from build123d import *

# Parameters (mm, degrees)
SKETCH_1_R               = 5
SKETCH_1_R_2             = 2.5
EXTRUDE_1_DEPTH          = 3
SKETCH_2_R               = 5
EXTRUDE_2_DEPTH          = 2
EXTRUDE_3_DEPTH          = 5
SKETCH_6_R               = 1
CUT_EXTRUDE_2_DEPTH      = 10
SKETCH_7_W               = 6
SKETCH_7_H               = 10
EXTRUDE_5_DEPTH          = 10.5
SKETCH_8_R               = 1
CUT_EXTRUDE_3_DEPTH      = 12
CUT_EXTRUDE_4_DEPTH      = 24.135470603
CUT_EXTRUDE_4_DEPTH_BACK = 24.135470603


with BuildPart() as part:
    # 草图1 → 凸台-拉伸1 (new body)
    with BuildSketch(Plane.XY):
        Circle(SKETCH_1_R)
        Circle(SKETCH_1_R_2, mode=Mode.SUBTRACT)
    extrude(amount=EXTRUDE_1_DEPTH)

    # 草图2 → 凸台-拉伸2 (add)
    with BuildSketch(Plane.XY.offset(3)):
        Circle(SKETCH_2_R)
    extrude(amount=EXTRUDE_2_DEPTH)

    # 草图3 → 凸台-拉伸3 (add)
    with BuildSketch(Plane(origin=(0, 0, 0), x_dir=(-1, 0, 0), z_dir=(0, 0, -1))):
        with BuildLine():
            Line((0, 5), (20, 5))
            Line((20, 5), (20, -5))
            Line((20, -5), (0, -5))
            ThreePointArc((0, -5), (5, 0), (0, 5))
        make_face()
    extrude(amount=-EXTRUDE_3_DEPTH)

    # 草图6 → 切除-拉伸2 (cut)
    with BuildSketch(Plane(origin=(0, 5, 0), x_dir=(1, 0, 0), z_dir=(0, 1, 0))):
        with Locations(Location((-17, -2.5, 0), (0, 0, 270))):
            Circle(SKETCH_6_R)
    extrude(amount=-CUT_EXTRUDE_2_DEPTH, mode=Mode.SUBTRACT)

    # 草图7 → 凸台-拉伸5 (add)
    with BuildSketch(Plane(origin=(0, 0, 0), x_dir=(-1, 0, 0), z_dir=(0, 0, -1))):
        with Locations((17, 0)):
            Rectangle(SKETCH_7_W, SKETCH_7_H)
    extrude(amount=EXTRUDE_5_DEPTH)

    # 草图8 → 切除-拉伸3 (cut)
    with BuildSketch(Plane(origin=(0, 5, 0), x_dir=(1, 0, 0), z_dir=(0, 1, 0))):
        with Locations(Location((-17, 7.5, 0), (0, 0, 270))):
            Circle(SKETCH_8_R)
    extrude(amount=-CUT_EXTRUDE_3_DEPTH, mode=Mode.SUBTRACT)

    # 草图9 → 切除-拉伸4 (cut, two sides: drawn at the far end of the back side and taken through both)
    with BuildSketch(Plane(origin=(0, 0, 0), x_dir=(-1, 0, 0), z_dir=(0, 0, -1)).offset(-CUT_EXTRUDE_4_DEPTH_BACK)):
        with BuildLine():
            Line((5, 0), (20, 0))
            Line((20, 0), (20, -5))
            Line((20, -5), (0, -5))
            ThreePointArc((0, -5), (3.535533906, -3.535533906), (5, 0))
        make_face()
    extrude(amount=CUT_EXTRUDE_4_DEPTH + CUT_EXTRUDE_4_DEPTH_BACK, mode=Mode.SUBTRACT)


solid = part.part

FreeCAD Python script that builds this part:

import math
import FreeCAD as App
import Part
import Sketcher

V = App.Vector

doc = App.newDocument("Part")
body = doc.addObject("PartDesign::Body", "Body")

# Sketch on XY plane
sketch1 = doc.addObject("Sketcher::SketchObject", "Sketch")
body.addObject(sketch1)
sketch1.AttachmentSupport = (doc.XY_Plane, [""])
sketch1.MapMode = "FlatFace"
sketch1.addGeometry([
    Part.Circle(V(0, 0, 0), V(0, 0, 1), 5),
    Part.Circle(V(0, 0, 0), V(0, 0, 1), 2.5),
], False)
sketch1.addConstraint([
    Sketcher.Constraint("Coincident", 0, 3, -1, 1),
    Sketcher.Constraint("Coincident", 1, 3, -1, 1),
    Sketcher.Constraint("Diameter", 0, 10.0),
    Sketcher.Constraint("Diameter", 1, 5.0),
])
pad1 = doc.addObject("PartDesign::Pad", "Pad")
body.addObject(pad1)
pad1.Profile = sketch1
pad1.Length = 3

# Sketch on XY plane
sketch2 = doc.addObject("Sketcher::SketchObject", "Sketch001")
body.addObject(sketch2)
sketch2.AttachmentSupport = (doc.XY_Plane, [""])
sketch2.MapMode = "FlatFace"
sketch2.AttachmentOffset = App.Placement(V(0, 0, 3), App.Rotation())
sketch2.addGeometry(Part.Circle(V(0, 0, 0), V(0, 0, 1), 5), False)
sketch2.addConstraint([
    Sketcher.Constraint("Coincident", 0, 3, -1, 1),
    Sketcher.Constraint("Diameter", 0, 10.0),
])
pad2 = doc.addObject("PartDesign::Pad", "Pad001")
body.addObject(pad2)
pad2.Profile = sketch2
pad2.Length = 2

# Sketch on XY plane
sketch3 = doc.addObject("Sketcher::SketchObject", "Sketch002")
body.addObject(sketch3)
sketch3.AttachmentSupport = (doc.XY_Plane, [""])
sketch3.MapMode = "FlatFace"
sketch3.addGeometry([
    Part.LineSegment(V(-20, 5, 0), V(0, 5, 0)),
    Part.ArcOfCircle(Part.Circle(V(0, 0, 0), V(0, 0, 1), 5), math.radians(90), math.radians(270)),
    Part.LineSegment(V(0, -5, 0), V(-20, -5, 0)),
    Part.LineSegment(V(-20, -5, 0), V(-20, 5, 0)),
], False)
sketch3.addConstraint([
    Sketcher.Constraint("Tangent", 0, 2, 1, 1),
    Sketcher.Constraint("Tangent", 1, 2, 2, 1),
    Sketcher.Constraint("Coincident", 2, 2, 3, 1),
    Sketcher.Constraint("Coincident", 3, 2, 0, 1),
    Sketcher.Constraint("Horizontal", 0),
    Sketcher.Constraint("Horizontal", 2),
    Sketcher.Constraint("Vertical", 3),
    Sketcher.Constraint("Coincident", 1, 3, -1, 1),
    Sketcher.Constraint("Radius", 1, 5.0),
    Sketcher.Constraint("DistanceX", 0, 1, 0, 2, 20.0),
])
pad3 = doc.addObject("PartDesign::Pad", "Pad002")
body.addObject(pad3)
pad3.Profile = sketch3
pad3.Length = 5

# Sketch on XZ plane
sketch4 = doc.addObject("Sketcher::SketchObject", "Sketch003")
body.addObject(sketch4)
sketch4.AttachmentSupport = (doc.XZ_Plane, [""])
sketch4.MapMode = "FlatFace"
sketch4.AttachmentOffset = App.Placement(V(0, 0, -5), App.Rotation())
sketch4.addGeometry(Part.Circle(V(-17, 2.5, 0), V(0, 0, 1), 1), False)
sketch4.addConstraint([
    Sketcher.Constraint("Diameter", 0, 2.0),
    Sketcher.Constraint("DistanceX", 0, 3, -1, 1, 17.0),
    Sketcher.Constraint("DistanceY", -1, 1, 0, 3, 2.5),
])
pocket1 = doc.addObject("PartDesign::Pocket", "Pocket")
body.addObject(pocket1)
pocket1.Profile = sketch4
pocket1.Length = 10
pocket1.Reversed = True

# Sketch on XY plane
sketch5 = doc.addObject("Sketcher::SketchObject", "Sketch004")
body.addObject(sketch5)
sketch5.AttachmentSupport = (doc.XY_Plane, [""])
sketch5.MapMode = "FlatFace"
sketch5.addGeometry([
    Part.LineSegment(V(-14, 5, 0), V(-14, -5, 0)),
    Part.LineSegment(V(-14, -5, 0), V(-20, -5, 0)),
    Part.LineSegment(V(-20, -5, 0), V(-20, 5, 0)),
    Part.LineSegment(V(-20, 5, 0), V(-14, 5, 0)),
], False)
sketch5.addConstraint([
    Sketcher.Constraint("Coincident", 0, 2, 1, 1),
    Sketcher.Constraint("Coincident", 1, 2, 2, 1),
    Sketcher.Constraint("Coincident", 2, 2, 3, 1),
    Sketcher.Constraint("Coincident", 3, 2, 0, 1),
    Sketcher.Constraint("Vertical", 0),
    Sketcher.Constraint("Horizontal", 1),
    Sketcher.Constraint("Vertical", 2),
    Sketcher.Constraint("Horizontal", 3),
    Sketcher.Constraint("DistanceX", 1, 2, 1, 1, 6.0),
    Sketcher.Constraint("DistanceY", 0, 2, 0, 1, 10.0),
    Sketcher.Constraint("DistanceX", 0, 2, -1, 1, 14.0),
    Sketcher.Constraint("DistanceY", 0, 2, -1, 1, 5.0),
])
pad4 = doc.addObject("PartDesign::Pad", "Pad003")
body.addObject(pad4)
pad4.Profile = sketch5
pad4.Length = 10.5
pad4.Reversed = True

# Sketch on XZ plane
sketch6 = doc.addObject("Sketcher::SketchObject", "Sketch005")
body.addObject(sketch6)
sketch6.AttachmentSupport = (doc.XZ_Plane, [""])
sketch6.MapMode = "FlatFace"
sketch6.AttachmentOffset = App.Placement(V(0, 0, -5), App.Rotation())
sketch6.addGeometry(Part.Circle(V(-17, -7.5, 0), V(0, 0, 1), 1), False)
sketch6.addConstraint([
    Sketcher.Constraint("Diameter", 0, 2.0),
    Sketcher.Constraint("DistanceX", 0, 3, -1, 1, 17.0),
    Sketcher.Constraint("DistanceY", 0, 3, -1, 1, 7.5),
])
pocket2 = doc.addObject("PartDesign::Pocket", "Pocket001")
body.addObject(pocket2)
pocket2.Profile = sketch6
pocket2.Length = 12
pocket2.Reversed = True

# Sketch on XY plane
sketch7 = doc.addObject("Sketcher::SketchObject", "Sketch006")
body.addObject(sketch7)
sketch7.AttachmentSupport = (doc.XY_Plane, [""])
sketch7.MapMode = "FlatFace"
sketch7.addGeometry([
    Part.LineSegment(V(-20, 0, 0), V(-5, 0, 0)),
    Part.ArcOfCircle(Part.Circle(V(0, 0, 0), V(0, 0, 1), 5), math.radians(180), math.radians(270)),
    Part.LineSegment(V(0, -5, 0), V(-20, -5, 0)),
    Part.LineSegment(V(-20, -5, 0), V(-20, 0, 0)),
], False)
sketch7.addConstraint([
    Sketcher.Constraint("Coincident", 0, 2, 1, 1),
    Sketcher.Constraint("Tangent", 1, 2, 2, 1),
    Sketcher.Constraint("Coincident", 2, 2, 3, 1),
    Sketcher.Constraint("Coincident", 3, 2, 0, 1),
    Sketcher.Constraint("Horizontal", 0),
    Sketcher.Constraint("Horizontal", 2),
    Sketcher.Constraint("Vertical", 3),
    Sketcher.Constraint("Coincident", 1, 3, -1, 1),
    Sketcher.Constraint("PointOnObject", 0, 2, -1),
    Sketcher.Constraint("Radius", 1, 5.0),
    Sketcher.Constraint("DistanceX", 0, 1, 0, 2, 15.0),
])
pocket3 = doc.addObject("PartDesign::Pocket", "Pocket002")
body.addObject(pocket3)
pocket3.Profile = sketch7
pocket3.Type = "ThroughAll"
pocket3.Midplane = True

doc.recompute()
